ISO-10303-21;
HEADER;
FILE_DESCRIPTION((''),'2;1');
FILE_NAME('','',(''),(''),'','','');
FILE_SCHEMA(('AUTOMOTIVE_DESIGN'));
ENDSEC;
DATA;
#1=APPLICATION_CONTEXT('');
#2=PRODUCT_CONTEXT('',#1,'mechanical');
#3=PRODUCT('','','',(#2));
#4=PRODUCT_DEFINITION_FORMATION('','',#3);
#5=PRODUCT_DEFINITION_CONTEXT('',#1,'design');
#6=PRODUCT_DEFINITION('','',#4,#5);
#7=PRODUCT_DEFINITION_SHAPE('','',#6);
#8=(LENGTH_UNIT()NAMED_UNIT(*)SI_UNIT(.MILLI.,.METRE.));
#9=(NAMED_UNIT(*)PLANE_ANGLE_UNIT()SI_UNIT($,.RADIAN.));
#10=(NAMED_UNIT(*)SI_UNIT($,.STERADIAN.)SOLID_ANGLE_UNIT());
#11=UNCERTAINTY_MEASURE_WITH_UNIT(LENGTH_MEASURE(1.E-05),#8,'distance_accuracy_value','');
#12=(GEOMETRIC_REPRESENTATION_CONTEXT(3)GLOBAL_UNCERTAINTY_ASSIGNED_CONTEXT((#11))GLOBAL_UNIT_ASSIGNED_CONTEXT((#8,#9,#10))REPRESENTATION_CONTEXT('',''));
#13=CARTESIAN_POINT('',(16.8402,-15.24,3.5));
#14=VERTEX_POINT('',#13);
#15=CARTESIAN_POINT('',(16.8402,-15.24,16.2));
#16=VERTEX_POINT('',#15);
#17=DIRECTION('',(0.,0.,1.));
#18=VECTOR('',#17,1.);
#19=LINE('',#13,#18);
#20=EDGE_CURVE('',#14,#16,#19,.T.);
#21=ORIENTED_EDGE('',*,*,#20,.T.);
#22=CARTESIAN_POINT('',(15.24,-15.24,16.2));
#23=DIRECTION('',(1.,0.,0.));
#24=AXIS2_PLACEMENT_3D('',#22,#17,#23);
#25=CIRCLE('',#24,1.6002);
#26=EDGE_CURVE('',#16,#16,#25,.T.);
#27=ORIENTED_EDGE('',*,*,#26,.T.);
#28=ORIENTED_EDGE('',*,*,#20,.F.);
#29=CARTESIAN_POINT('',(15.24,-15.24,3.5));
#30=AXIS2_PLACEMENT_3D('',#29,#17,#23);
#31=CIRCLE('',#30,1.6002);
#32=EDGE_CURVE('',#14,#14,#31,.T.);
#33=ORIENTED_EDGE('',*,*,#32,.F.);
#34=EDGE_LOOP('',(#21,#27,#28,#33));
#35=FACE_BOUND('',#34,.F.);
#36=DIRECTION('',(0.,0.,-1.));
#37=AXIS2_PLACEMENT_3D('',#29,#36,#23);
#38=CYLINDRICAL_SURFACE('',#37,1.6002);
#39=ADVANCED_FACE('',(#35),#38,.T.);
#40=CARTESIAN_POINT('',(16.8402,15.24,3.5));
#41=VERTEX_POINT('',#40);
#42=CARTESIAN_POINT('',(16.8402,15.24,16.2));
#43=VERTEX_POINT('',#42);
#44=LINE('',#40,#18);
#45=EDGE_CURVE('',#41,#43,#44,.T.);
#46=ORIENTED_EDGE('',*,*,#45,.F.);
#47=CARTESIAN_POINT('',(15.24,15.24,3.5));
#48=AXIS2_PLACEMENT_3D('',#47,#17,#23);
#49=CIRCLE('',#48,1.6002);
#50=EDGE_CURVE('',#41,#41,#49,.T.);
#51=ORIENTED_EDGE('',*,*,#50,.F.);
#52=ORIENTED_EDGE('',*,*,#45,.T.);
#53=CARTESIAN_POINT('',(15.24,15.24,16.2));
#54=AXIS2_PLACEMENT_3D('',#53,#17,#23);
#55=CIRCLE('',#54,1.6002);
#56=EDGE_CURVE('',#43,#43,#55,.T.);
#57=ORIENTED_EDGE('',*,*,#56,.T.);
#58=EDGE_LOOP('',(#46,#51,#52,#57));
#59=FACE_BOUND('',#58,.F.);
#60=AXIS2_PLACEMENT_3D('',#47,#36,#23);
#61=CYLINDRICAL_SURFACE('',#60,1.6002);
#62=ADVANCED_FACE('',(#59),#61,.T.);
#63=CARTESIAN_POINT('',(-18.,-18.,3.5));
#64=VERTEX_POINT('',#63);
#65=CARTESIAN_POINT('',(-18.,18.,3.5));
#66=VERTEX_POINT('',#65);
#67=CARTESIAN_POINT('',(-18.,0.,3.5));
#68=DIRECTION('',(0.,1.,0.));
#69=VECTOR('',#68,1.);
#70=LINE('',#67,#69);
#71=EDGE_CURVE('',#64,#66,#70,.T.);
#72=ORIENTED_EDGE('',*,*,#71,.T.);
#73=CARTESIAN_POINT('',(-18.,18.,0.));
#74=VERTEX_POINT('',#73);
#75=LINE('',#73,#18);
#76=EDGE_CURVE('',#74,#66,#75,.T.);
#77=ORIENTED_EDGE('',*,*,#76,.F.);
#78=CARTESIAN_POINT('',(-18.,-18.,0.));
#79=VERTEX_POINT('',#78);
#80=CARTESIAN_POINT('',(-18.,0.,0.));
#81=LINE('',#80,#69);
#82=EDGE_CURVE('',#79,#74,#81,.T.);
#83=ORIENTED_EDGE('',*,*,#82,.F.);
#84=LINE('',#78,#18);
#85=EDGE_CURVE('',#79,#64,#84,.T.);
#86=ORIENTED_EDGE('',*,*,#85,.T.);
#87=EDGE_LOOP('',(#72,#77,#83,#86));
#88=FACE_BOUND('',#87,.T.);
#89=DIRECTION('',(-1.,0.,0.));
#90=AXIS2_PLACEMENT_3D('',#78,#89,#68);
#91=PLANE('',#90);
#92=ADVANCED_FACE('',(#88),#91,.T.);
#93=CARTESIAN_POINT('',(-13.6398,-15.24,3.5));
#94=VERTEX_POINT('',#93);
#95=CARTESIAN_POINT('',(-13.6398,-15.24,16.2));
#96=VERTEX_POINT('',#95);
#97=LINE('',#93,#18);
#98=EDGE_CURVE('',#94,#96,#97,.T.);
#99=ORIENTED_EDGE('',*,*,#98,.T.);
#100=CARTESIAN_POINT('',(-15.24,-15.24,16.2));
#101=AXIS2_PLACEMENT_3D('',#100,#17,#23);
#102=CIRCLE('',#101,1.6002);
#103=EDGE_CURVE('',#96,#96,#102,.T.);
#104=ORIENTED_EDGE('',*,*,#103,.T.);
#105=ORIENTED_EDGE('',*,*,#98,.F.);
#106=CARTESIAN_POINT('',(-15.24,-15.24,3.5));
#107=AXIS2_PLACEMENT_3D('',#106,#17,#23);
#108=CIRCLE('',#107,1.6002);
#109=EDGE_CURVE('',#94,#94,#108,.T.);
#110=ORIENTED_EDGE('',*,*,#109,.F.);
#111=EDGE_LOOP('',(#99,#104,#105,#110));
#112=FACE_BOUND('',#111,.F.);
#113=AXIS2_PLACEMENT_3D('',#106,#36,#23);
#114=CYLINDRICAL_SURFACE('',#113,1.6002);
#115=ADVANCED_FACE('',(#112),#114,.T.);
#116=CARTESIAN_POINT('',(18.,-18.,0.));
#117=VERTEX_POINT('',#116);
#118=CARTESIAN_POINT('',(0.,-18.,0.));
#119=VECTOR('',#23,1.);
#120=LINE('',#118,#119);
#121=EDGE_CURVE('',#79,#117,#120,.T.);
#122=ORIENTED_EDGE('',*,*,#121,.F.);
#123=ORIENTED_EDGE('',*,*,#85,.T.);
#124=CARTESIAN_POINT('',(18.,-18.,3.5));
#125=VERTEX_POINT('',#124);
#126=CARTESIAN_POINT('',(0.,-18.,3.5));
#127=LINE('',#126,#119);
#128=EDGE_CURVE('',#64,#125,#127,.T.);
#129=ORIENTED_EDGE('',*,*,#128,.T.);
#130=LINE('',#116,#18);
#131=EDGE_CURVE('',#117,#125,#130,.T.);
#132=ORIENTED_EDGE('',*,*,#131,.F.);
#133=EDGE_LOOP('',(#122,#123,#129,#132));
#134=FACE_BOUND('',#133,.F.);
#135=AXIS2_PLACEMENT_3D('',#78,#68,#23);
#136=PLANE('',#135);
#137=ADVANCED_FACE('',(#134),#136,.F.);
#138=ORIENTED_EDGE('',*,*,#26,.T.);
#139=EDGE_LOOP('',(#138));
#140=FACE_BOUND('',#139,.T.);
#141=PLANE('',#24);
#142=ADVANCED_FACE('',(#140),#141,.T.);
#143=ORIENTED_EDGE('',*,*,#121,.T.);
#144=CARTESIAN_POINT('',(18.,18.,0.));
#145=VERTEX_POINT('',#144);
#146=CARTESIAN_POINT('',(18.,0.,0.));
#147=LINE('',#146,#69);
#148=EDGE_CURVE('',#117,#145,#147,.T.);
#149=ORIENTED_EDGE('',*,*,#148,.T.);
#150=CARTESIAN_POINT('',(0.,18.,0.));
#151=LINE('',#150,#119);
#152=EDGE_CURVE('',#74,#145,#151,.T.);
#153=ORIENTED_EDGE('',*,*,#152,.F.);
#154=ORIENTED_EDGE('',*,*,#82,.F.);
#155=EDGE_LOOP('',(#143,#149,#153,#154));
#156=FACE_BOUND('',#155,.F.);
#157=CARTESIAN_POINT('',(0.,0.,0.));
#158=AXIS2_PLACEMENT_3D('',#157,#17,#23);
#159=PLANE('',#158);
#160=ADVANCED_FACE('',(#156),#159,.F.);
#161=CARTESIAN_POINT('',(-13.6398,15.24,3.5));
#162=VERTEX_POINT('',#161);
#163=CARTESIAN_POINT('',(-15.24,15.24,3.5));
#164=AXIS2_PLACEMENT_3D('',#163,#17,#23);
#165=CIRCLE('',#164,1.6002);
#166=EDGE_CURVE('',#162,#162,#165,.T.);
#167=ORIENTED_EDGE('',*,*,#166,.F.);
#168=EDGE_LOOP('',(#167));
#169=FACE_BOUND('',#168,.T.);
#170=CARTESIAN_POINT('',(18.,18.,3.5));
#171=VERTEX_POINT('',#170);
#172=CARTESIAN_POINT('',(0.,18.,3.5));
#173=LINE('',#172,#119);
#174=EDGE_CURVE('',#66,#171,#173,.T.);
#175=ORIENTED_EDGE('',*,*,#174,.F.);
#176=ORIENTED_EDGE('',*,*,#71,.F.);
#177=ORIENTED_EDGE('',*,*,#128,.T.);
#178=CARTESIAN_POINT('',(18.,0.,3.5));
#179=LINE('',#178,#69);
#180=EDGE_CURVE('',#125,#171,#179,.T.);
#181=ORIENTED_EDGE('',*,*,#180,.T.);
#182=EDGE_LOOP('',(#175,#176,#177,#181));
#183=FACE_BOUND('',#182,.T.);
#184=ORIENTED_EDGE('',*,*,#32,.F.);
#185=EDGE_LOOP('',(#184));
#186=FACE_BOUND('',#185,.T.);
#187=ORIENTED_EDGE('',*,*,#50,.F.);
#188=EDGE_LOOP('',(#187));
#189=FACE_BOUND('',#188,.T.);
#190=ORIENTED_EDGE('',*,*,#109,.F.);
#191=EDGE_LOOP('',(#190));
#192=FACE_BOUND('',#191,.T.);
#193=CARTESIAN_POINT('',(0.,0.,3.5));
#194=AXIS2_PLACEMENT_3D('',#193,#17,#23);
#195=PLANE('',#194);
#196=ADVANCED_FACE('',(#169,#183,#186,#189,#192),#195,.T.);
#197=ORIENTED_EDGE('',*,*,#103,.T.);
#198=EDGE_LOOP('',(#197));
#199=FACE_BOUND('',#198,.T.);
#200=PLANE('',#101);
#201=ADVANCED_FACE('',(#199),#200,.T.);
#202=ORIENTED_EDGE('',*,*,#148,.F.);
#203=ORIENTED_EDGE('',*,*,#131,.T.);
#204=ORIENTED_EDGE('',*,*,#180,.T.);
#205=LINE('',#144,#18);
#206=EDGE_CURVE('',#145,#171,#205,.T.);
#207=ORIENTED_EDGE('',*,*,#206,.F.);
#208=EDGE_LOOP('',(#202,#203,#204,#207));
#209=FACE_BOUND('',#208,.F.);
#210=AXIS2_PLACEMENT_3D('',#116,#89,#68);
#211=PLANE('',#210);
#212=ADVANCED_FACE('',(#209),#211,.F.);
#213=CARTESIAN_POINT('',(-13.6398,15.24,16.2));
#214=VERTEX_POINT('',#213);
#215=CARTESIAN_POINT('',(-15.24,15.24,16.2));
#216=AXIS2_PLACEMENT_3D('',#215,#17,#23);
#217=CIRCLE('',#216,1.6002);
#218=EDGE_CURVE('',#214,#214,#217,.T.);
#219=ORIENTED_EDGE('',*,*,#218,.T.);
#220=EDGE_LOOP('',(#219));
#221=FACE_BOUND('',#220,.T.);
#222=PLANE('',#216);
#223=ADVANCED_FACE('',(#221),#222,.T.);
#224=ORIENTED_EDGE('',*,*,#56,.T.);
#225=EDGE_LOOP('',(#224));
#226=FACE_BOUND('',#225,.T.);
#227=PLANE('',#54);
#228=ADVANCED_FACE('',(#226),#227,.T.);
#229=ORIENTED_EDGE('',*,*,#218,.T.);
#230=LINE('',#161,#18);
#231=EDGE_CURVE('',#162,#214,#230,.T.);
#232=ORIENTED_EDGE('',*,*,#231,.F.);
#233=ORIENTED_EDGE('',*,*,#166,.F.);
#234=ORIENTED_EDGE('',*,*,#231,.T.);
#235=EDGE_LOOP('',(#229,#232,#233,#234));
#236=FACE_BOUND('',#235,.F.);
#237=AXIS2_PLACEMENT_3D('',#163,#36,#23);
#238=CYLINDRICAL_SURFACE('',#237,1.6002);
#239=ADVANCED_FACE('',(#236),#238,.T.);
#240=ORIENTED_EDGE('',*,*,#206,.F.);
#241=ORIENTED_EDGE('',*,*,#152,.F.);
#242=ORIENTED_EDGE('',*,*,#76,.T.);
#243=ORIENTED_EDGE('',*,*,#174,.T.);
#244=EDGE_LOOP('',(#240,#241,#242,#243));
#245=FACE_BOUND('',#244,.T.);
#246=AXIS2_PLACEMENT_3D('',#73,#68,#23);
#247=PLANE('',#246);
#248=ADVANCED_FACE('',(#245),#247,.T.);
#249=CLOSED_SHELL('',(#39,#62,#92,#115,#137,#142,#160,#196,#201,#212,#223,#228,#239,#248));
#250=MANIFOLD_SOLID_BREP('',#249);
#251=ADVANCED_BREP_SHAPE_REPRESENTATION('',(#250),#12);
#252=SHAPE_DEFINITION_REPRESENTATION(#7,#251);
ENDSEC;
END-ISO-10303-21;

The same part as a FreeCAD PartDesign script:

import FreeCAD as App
import Part
import Sketcher

V = App.Vector
Q = App.Units.Quantity

doc = App.newDocument("Part")
body = doc.addObject("PartDesign::Body", "Body")

# Sketch on XY plane
sketch1 = doc.addObject("Sketcher::SketchObject", "Sketch")
body.addObject(sketch1)
sketch1.AttachmentSupport = (doc.XY_Plane, [""])
sketch1.MapMode = "FlatFace"
sketch1.addGeometry([
    Part.LineSegment(V(-18, 18, 0), V(-18, -18, 0)),
    Part.LineSegment(V(-18, -18, 0), V(18, -18, 0)),
    Part.LineSegment(V(18, -18, 0), V(18, 18, 0)),
    Part.LineSegment(V(18, 18, 0), V(-18, 18, 0)),
], False)
sketch1.addConstraint([
    Sketcher.Constraint("Coincident", 0, 2, 1, 1),
    Sketcher.Constraint("Coincident", 1, 2, 2, 1),
    Sketcher.Constraint("Coincident", 2, 2, 3, 1),
    Sketcher.Constraint("Coincident", 3, 2, 0, 1),
    Sketcher.Constraint("Vertical", 0),
    Sketcher.Constraint("Horizontal", 1),
    Sketcher.Constraint("Vertical", 2),
    Sketcher.Constraint("Horizontal", 3),
    Sketcher.Constraint("Symmetric", 0, 2, 2, 2, -1, 1),
    Sketcher.Constraint("Equal", 3, 0),
    Sketcher.Constraint("DistanceX", 1, 1, 1, 2, Q("36 mm")),
])
pad1 = doc.addObject("PartDesign::Pad", "Pad")
body.addObject(pad1)
pad1.Profile = sketch1
pad1.Length = 3.5

# Sketch on XY plane
sketch2 = doc.addObject("Sketcher::SketchObject", "Sketch001")
body.addObject(sketch2)
sketch2.AttachmentSupport = (doc.XY_Plane, [""])
sketch2.MapMode = "FlatFace"
sketch2.AttachmentOffset = App.Placement(V(0, 0, 3.5), App.Rotation())
sketch2.addGeometry([
    Part.Circle(V(-15.2, 15.2, 0), V(0, 0, 1), 1.6),
    Part.Circle(V(15.2, 15.2, 0), V(0, 0, 1), 1.6),
    Part.Circle(V(-15.2, -15.2, 0), V(0, 0, 1), 1.6),
    Part.Circle(V(15.2, -15.2, 0), V(0, 0, 1), 1.6),
], False)
sketch2.addConstraint([
    Sketcher.Constraint("Equal", 0, 1),
    Sketcher.Constraint("Equal", 1, 2),
    Sketcher.Constraint("Equal", 2, 3),
    Sketcher.Constraint("Symmetric", 1, 3, 2, 3, -1, 1),
    Sketcher.Constraint("Symmetric", 0, 3, 3, 3, -1, 1),
    Sketcher.Constraint("Symmetric", 0, 3, 1, 3, -2),
    Sketcher.Constraint("Diameter", 0, Q("3.2004 mm")),
    Sketcher.Constraint("DistanceX", 0, 3, -1, 1, Q("15.24 mm")),
    Sketcher.Constraint("DistanceY", -1, 1, 0, 3, Q("15.24 mm")),
])
pad2 = doc.addObject("PartDesign::Pad", "Pad001")
body.addObject(pad2)
pad2.Profile = sketch2
pad2.Length = 12.7

doc.recompute()
